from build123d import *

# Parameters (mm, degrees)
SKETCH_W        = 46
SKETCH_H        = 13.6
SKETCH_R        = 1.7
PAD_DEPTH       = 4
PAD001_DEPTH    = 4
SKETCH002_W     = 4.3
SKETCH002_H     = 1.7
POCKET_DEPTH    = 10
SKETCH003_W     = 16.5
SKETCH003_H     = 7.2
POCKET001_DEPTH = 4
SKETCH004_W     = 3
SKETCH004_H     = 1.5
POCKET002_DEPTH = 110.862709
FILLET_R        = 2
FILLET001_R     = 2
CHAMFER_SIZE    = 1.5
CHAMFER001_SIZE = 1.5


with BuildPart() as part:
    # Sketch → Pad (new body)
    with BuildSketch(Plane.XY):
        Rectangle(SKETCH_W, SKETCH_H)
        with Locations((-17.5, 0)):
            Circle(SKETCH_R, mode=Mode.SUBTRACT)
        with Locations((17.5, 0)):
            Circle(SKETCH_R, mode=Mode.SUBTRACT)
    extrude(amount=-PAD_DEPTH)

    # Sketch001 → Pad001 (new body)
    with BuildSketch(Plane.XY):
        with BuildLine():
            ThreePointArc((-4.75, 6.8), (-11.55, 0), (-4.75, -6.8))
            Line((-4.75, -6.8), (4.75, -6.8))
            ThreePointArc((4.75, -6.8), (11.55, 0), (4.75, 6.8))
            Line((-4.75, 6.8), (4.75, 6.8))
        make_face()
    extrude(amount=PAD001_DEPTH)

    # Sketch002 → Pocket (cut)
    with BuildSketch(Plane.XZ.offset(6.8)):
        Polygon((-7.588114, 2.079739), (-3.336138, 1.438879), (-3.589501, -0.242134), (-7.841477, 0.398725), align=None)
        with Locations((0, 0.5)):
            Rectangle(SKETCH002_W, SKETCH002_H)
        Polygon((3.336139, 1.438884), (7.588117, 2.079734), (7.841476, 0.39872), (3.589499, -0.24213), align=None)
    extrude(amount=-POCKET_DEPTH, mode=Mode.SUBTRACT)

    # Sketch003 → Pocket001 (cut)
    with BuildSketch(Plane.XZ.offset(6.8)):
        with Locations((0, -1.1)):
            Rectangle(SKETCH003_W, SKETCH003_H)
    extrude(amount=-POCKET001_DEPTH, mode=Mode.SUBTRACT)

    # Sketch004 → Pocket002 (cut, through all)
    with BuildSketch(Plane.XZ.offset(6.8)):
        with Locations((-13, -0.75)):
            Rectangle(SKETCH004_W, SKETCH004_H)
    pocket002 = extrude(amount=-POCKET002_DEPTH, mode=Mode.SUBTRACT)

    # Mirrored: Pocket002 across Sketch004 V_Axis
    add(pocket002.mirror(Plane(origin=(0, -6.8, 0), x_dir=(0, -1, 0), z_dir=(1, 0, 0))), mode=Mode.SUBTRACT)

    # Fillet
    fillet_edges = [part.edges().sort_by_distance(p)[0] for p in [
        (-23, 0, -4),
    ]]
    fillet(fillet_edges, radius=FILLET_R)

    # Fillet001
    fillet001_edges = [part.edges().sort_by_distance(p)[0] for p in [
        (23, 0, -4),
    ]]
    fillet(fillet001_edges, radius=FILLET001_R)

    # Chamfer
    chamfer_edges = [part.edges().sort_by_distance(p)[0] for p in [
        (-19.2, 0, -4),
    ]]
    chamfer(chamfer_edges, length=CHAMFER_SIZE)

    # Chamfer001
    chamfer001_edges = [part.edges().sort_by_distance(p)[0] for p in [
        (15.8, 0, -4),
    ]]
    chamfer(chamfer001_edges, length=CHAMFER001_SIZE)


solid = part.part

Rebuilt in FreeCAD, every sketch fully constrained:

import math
import FreeCAD as App
import Part
import Sketcher

V = App.Vector
Q = App.Units.Quantity


def edges_at(feature, points):
    """Names of the edges that pass closest to the given points."""
    edges = feature.Shape.Edges
    near = lambda p: min(range(len(edges)), key=lambda i: edges[i].distToShape(Part.Vertex(*p))[0])
    return sorted({f"Edge{near(p) + 1}" for p in points})

doc = App.newDocument("Part")
params = doc.addObject("Spreadsheet::Sheet", "Params")
for row, (alias, value) in enumerate([
    ("sketch1_diameter", "3.4 mm"),
    ("sketch1_width", "46 mm"),
    ("sketch1_height", "13.6 mm"),
    ("pad1_length", "4 mm"),
    ("sketch2_radius", "6.8 mm"),
    ("sketch2_width", "9.5 mm"),
    ("pad2_length", "4 mm"),
    ("sketch3_width", "4.3 mm"),
    ("sketch3_height", "1.7 mm"),
    ("sketch3_length", "4.3 mm"),
    ("sketch3_length2", "1.7 mm"),
    ("pocket1_length", "10 mm"),
    ("sketch4_width", "16.5 mm"),
    ("sketch4_height", "7.2 mm"),
    ("pocket2_length", "4 mm"),
    ("sketch5_width", "3 mm"),
    ("sketch5_height", "1.5 mm"),
    ("fillet_radius", "2 mm"),
    ("fillet2_radius", "2 mm"),
    ("chamfer_size", "1.5 mm"),
    ("chamfer2_size", "1.5 mm"),
], start=1):
    params.set(f"A{row}", alias)
    params.set(f"B{row}", "=" + value)
    params.setAlias(f"B{row}", alias)

body = doc.addObject("PartDesign::Body", "Body")

sketch1 = body.newObject("Sketcher::SketchObject", "Sketch")
sketch1.AttachmentSupport = (doc.getObject("XY_Plane"), [""])
sketch1.MapMode = "FlatFace"
sketch1.addGeometry(Part.LineSegment(V(-23, 6.8, 0), V(-23, -6.8, 0)), False)
sketch1.addGeometry(Part.LineSegment(V(-23, -6.8, 0), V(23, -6.8, 0)), False)
sketch1.addGeometry(Part.LineSegment(V(23, -6.8, 0), V(23, 6.8, 0)), False)
sketch1.addGeometry(Part.LineSegment(V(23, 6.8, 0), V(-23, 6.8, 0)), False)
sketch1.addGeometry(Part.Circle(V(-17.5, 0, 0), V(0, 0, 1), 1.7), False)
sketch1.addGeometry(Part.Circle(V(17.5, 0, 0), V(0, 0, 1), 1.7), False)
sketch1.addConstraint(Sketcher.Constraint("Coincident", 0, 2, 1, 1))
sketch1.addConstraint(Sketcher.Constraint("Coincident", 1, 2, 2, 1))
sketch1.addConstraint(Sketcher.Constraint("Coincident", 2, 2, 3, 1))
sketch1.addConstraint(Sketcher.Constraint("Coincident", 3, 2, 0, 1))
sketch1.addConstraint(Sketcher.Constraint("Vertical", 0))
sketch1.addConstraint(Sketcher.Constraint("Horizontal", 1))
sketch1.addConstraint(Sketcher.Constraint("Vertical", 2))
sketch1.addConstraint(Sketcher.Constraint("Horizontal", 3))
sketch1.addConstraint(Sketcher.Constraint("Equal", 4, 5))
sketch1.addConstraint(Sketcher.Constraint("Symmetric", 4, 3, 5, 3, -1, 1))
sketch1.addConstraint(Sketcher.Constraint("Symmetric", 0, 2, 2, 2, -1, 1))
sketch1.addConstraint(Sketcher.Constraint("PointOnObject", 4, 3, -1))
sketch1.addConstraint(Sketcher.Constraint("Diameter", 4, Q("3.4 mm")))
sketch1.addConstraint(Sketcher.Constraint("DistanceX", 1, 1, 1, 2, Q("46 mm")))
sketch1.addConstraint(Sketcher.Constraint("DistanceY", 0, 2, 0, 1, Q("13.6 mm")))
sketch1.addConstraint(Sketcher.Constraint("DistanceX", 4, 3, 5, 3, Q("35 mm")))
sketch1.setExpression("Constraints[12]", "Params.sketch1_diameter")
sketch1.setExpression("Constraints[13]", "Params.sketch1_width")
sketch1.setExpression("Constraints[14]", "Params.sketch1_height")
pad1 = body.newObject("PartDesign::Pad", "Pad")
pad1.Profile = sketch1
pad1.setExpression("Length", "Params.pad1_length")
pad1.Reversed = True

sketch2 = body.newObject("Sketcher::SketchObject", "Sketch001")
sketch2.AttachmentSupport = (doc.getObject("XY_Plane"), [""])
sketch2.MapMode = "FlatFace"
sketch2.addGeometry(Part.ArcOfCircle(Part.Circle(V(-5, 0, 0), V(0, 0, 1), 7), math.radians(90), math.radians(270)), False)
sketch2.addGeometry(Part.LineSegment(V(-5, -7, 0), V(5, -7, 0)), False)
sketch2.addGeometry(Part.ArcOfCircle(Part.Circle(V(5, 0, 0), V(0, 0, 1), 7), math.radians(-90), math.radians(90)), False)
sketch2.addGeometry(Part.LineSegment(V(5, 7, 0), V(-5, 7, 0)), False)
sketch2.addConstraint(Sketcher.Constraint("Tangent", 0, 2, 1, 1))
sketch2.addConstraint(Sketcher.Constraint("Tangent", 1, 2, 2, 1))
sketch2.addConstraint(Sketcher.Constraint("Tangent", 2, 2, 3, 1))
sketch2.addConstraint(Sketcher.Constraint("Tangent", 3, 2, 0, 1))
sketch2.addConstraint(Sketcher.Constraint("Horizontal", 1))
sketch2.addConstraint(Sketcher.Constraint("Horizontal", 3))
sketch2.addConstraint(Sketcher.Constraint("Symmetric", 0, 3, 2, 3, -1, 1))
sketch2.addConstraint(Sketcher.Constraint("Radius", 0, Q("6.8 mm")))
sketch2.addConstraint(Sketcher.Constraint("DistanceX", 1, 1, 1, 2, Q("9.5 mm")))
sketch2.setExpression("Constraints[7]", "Params.sketch2_radius")
sketch2.setExpression("Constraints[8]", "Params.sketch2_width")
pad2 = body.newObject("PartDesign::Pad", "Pad001")
pad2.Profile = sketch2
pad2.setExpression("Length", "Params.pad2_length")

sketch3 = body.newObject("Sketcher::SketchObject", "Sketch002")
sketch3.AttachmentSupport = (doc.getObject("XZ_Plane"), [""])
sketch3.MapMode = "FlatFace"
sketch3.AttachmentOffset = App.Placement(V(0, 0, 6.8), App.Rotation())
sketch3.addGeometry(Part.LineSegment(V(-3.3, 1.4, 0), V(-7.6, 2.1, 0)), False)
sketch3.addGeometry(Part.LineSegment(V(-7.6, 2.1, 0), V(-7.8, 0.4, 0)), False)
sketch3.addGeometry(Part.LineSegment(V(-7.8, 0.4, 0), V(-3.6, -0.2, 0)), False)
sketch3.addGeometry(Part.LineSegment(V(-3.6, -0.2, 0), V(-3.3, 1.4, 0)), False)
sketch3.addGeometry(Part.LineSegment(V(-2.1, 1.4, 0), V(-2.1, -0.3, 0)), False)
sketch3.addGeometry(Part.LineSegment(V(-2.1, -0.3, 0), V(2.1, -0.3, 0)), False)
sketch3.addGeometry(Part.LineSegment(V(2.1, -0.3, 0), V(2.1, 1.4, 0)), False)
sketch3.addGeometry(Part.LineSegment(V(2.1, 1.4, 0), V(-2.1, 1.4, 0)), False)
sketch3.addGeometry(Part.LineSegment(V(7.6, 2.1, 0), V(3.3, 1.4, 0)), False)
sketch3.addGeometry(Part.LineSegment(V(3.3, 1.4, 0), V(3.6, -0.2, 0)), False)
sketch3.addGeometry(Part.LineSegment(V(3.6, -0.2, 0), V(7.8, 0.4, 0)), False)
sketch3.addGeometry(Part.LineSegment(V(7.8, 0.4, 0), V(7.6, 2.1, 0)), False)
sketch3.addConstraint(Sketcher.Constraint("Coincident", 0, 2, 1, 1))
sketch3.addConstraint(Sketcher.Constraint("Coincident", 1, 2, 2, 1))
sketch3.addConstraint(Sketcher.Constraint("Coincident", 2, 2, 3, 1))
sketch3.addConstraint(Sketcher.Constraint("Coincident", 3, 2, 0, 1))
sketch3.addConstraint(Sketcher.Constraint("Coincident", 4, 2, 5, 1))
sketch3.addConstraint(Sketcher.Constraint("Coincident", 5, 2, 6, 1))
sketch3.addConstraint(Sketcher.Constraint("Coincident", 6, 2, 7, 1))
sketch3.addConstraint(Sketcher.Constraint("Coincident", 7, 2, 4, 1))
sketch3.addConstraint(Sketcher.Constraint("Coincident", 8, 2, 9, 1))
sketch3.addConstraint(Sketcher.Constraint("Coincident", 9, 2, 10, 1))
sketch3.addConstraint(Sketcher.Constraint("Coincident", 10, 2, 11, 1))
sketch3.addConstraint(Sketcher.Constraint("Coincident", 11, 2, 8, 1))
sketch3.addConstraint(Sketcher.Constraint("Vertical", 4))
sketch3.addConstraint(Sketcher.Constraint("Horizontal", 5))
sketch3.addConstraint(Sketcher.Constraint("Vertical", 6))
sketch3.addConstraint(Sketcher.Constraint("Horizontal", 7))
sketch3.addConstraint(Sketcher.Constraint("Symmetric", 3, 2, 8, 2, -2))
sketch3.addConstraint(Sketcher.Constraint("Symmetric", 2, 2, 9, 2, -2))
sketch3.addConstraint(Sketcher.Constraint("Symmetric", 1, 2, 10, 2, -2))
sketch3.addConstraint(Sketcher.Constraint("Symmetric", 0, 2, 11, 2, -2))
sketch3.addConstraint(Sketcher.Constraint("Perpendicular", 0, 1))
sketch3.addConstraint(Sketcher.Constraint("Perpendicular", 1, 2))
sketch3.addConstraint(Sketcher.Constraint("Perpendicular", 2, 3))
sketch3.addConstraint(Sketcher.Constraint("DistanceX", 5, 1, 5, 2, Q("4.3 mm")))
sketch3.addConstraint(Sketcher.Constraint("DistanceY", 4, 2, 4, 1, Q("1.7 mm")))
sketch3.addConstraint(Sketcher.Constraint("Distance", 0, Q("4.3 mm")))
sketch3.addConstraint(Sketcher.Constraint("Distance", 1, Q("1.7 mm")))
sketch3.addConstraint(Sketcher.Constraint("DistanceX", 4, 2, -1, 1, Q("2.15 mm")))
sketch3.addConstraint(Sketcher.Constraint("DistanceY", 4, 2, -1, 1, Q("0.35 mm")))
sketch3.addConstraint(Sketcher.Constraint("DistanceX", 2, 2, -1, 1, Q("3.589501 mm")))
sketch3.addConstraint(Sketcher.Constraint("DistanceY", -1, 1, 0, 2, Q("2.079739 mm")))
sketch3.addConstraint(Sketcher.Constraint("DistanceX", 3, 2, -1, 1, Q("3.336138 mm")))
sketch3.setExpression("Constraints[23]", "Params.sketch3_width")
sketch3.setExpression("Constraints[24]", "Params.sketch3_height")
sketch3.setExpression("Constraints[25]", "Params.sketch3_length")
sketch3.setExpression("Constraints[26]", "Params.sketch3_length2")
pocket1 = body.newObject("PartDesign::Pocket", "Pocket")
pocket1.Profile = sketch3
pocket1.setExpression("Length", "Params.pocket1_length")

sketch4 = body.newObject("Sketcher::SketchObject", "Sketch003")
sketch4.AttachmentSupport = (doc.getObject("XZ_Plane"), [""])
sketch4.MapMode = "FlatFace"
sketch4.AttachmentOffset = App.Placement(V(0, 0, 6.8), App.Rotation())
sketch4.addGeometry(Part.LineSegment(V(-8, 2, 0), V(-8, -5, 0)), False)
sketch4.addGeometry(Part.LineSegment(V(-8, -5, 0), V(8, -5, 0)), False)
sketch4.addGeometry(Part.LineSegment(V(8, -5, 0), V(8, 2, 0)), False)
sketch4.addGeometry(Part.LineSegment(V(8, 2, 0), V(-8, 2, 0)), False)
sketch4.addConstraint(Sketcher.Constraint("Coincident", 0, 2, 1, 1))
sketch4.addConstraint(Sketcher.Constraint("Coincident", 1, 2, 2, 1))
sketch4.addConstraint(Sketcher.Constraint("Coincident", 2, 2, 3, 1))
sketch4.addConstraint(Sketcher.Constraint("Coincident", 3, 2, 0, 1))
sketch4.addConstraint(Sketcher.Constraint("Vertical", 0))
sketch4.addConstraint(Sketcher.Constraint("Horizontal", 1))
sketch4.addConstraint(Sketcher.Constraint("Vertical", 2))
sketch4.addConstraint(Sketcher.Constraint("Horizontal", 3))
sketch4.addConstraint(Sketcher.Constraint("DistanceX", 1, 1, 1, 2, Q("16.5 mm")))
sketch4.addConstraint(Sketcher.Constraint("DistanceY", 0, 2, 0, 1, Q("7.2 mm")))
sketch4.addConstraint(Sketcher.Constraint("DistanceY", 0, 2, -1, 1, Q("4.7 mm")))
sketch4.addConstraint(Sketcher.Constraint("DistanceX", 0, 2, -1, 1, Q("8.25 mm")))
sketch4.setExpression("Constraints[8]", "Params.sketch4_width")
sketch4.setExpression("Constraints[9]", "Params.sketch4_height")
pocket2 = body.newObject("PartDesign::Pocket", "Pocket001")
pocket2.Profile = sketch4
pocket2.setExpression("Length", "Params.pocket2_length")

sketch5 = body.newObject("Sketcher::SketchObject", "Sketch004")
sketch5.AttachmentSupport = (doc.getObject("XZ_Plane"), [""])
sketch5.MapMode = "FlatFace"
sketch5.AttachmentOffset = App.Placement(V(0, 0, 6.8), App.Rotation())
sketch5.addGeometry(Part.LineSegment(V(-14.5, 0, 0), V(-14.5, -1.5, 0)), False)
sketch5.addGeometry(Part.LineSegment(V(-14.5, -1.5, 0), V(-11.5, -1.5, 0)), False)
sketch5.addGeometry(Part.LineSegment(V(-11.5, -1.5, 0), V(-11.5, 0, 0)), False)
sketch5.addGeometry(Part.LineSegment(V(-11.5, 0, 0), V(-14.5, 0, 0)), False)
sketch5.addConstraint(Sketcher.Constraint("Coincident", 0, 2, 1, 1))
sketch5.addConstraint(Sketcher.Constraint("Coincident", 1, 2, 2, 1))
sketch5.addConstraint(Sketcher.Constraint("Coincident", 2, 2, 3, 1))
sketch5.addConstraint(Sketcher.Constraint("Coincident", 3, 2, 0, 1))
sketch5.addConstraint(Sketcher.Constraint("Vertical", 0))
sketch5.addConstraint(Sketcher.Constraint("Horizontal", 1))
sketch5.addConstraint(Sketcher.Constraint("Vertical", 2))
sketch5.addConstraint(Sketcher.Constraint("Horizontal", 3))
sketch5.addConstraint(Sketcher.Constraint("PointOnObject", 2, 2, -1))
sketch5.addConstraint(Sketcher.Constraint("DistanceX", 1, 1, 1, 2, Q("3 mm")))
sketch5.addConstraint(Sketcher.Constraint("DistanceY", 0, 2, 0, 1, Q("1.5 mm")))
sketch5.addConstraint(Sketcher.Constraint("DistanceX", 0, 2, -1, 1, Q("14.5 mm")))
sketch5.setExpression("Constraints[9]", "Params.sketch5_width")
sketch5.setExpression("Constraints[10]", "Params.sketch5_height")
pocket3 = body.newObject("PartDesign::Pocket", "Pocket002")
pocket3.Profile = sketch5
pocket3.Type = "ThroughAll"
doc.recompute()

mirrored = body.newObject("PartDesign::Mirrored", "Mirrored")
mirrored.Originals = [pocket3]
mirrored.MirrorPlane = (doc.getObject("YZ_Plane"), [""])
body.Tip = mirrored
doc.recompute()

fillet = body.newObject("PartDesign::Fillet", "Fillet")
fillet.Base = (mirrored, edges_at(mirrored, [(-23, 0, -4)]))
fillet.setExpression("Radius", "Params.fillet_radius")
doc.recompute()

fillet2 = body.newObject("PartDesign::Fillet", "Fillet001")
fillet2.Base = (fillet, edges_at(fillet, [(23, 0, -4)]))
fillet2.setExpression("Radius", "Params.fillet2_radius")
doc.recompute()

chamfer = body.newObject("PartDesign::Chamfer", "Chamfer")
chamfer.Base = (fillet2, edges_at(fillet2, [(-19.2, 0, -4)]))
chamfer.setExpression("Size", "Params.chamfer_size")
doc.recompute()

chamfer2 = body.newObject("PartDesign::Chamfer", "Chamfer001")
chamfer2.Base = (chamfer, edges_at(chamfer, [(15.8, 0, -4)]))
chamfer2.setExpression("Size", "Params.chamfer2_size")

doc.recompute()
